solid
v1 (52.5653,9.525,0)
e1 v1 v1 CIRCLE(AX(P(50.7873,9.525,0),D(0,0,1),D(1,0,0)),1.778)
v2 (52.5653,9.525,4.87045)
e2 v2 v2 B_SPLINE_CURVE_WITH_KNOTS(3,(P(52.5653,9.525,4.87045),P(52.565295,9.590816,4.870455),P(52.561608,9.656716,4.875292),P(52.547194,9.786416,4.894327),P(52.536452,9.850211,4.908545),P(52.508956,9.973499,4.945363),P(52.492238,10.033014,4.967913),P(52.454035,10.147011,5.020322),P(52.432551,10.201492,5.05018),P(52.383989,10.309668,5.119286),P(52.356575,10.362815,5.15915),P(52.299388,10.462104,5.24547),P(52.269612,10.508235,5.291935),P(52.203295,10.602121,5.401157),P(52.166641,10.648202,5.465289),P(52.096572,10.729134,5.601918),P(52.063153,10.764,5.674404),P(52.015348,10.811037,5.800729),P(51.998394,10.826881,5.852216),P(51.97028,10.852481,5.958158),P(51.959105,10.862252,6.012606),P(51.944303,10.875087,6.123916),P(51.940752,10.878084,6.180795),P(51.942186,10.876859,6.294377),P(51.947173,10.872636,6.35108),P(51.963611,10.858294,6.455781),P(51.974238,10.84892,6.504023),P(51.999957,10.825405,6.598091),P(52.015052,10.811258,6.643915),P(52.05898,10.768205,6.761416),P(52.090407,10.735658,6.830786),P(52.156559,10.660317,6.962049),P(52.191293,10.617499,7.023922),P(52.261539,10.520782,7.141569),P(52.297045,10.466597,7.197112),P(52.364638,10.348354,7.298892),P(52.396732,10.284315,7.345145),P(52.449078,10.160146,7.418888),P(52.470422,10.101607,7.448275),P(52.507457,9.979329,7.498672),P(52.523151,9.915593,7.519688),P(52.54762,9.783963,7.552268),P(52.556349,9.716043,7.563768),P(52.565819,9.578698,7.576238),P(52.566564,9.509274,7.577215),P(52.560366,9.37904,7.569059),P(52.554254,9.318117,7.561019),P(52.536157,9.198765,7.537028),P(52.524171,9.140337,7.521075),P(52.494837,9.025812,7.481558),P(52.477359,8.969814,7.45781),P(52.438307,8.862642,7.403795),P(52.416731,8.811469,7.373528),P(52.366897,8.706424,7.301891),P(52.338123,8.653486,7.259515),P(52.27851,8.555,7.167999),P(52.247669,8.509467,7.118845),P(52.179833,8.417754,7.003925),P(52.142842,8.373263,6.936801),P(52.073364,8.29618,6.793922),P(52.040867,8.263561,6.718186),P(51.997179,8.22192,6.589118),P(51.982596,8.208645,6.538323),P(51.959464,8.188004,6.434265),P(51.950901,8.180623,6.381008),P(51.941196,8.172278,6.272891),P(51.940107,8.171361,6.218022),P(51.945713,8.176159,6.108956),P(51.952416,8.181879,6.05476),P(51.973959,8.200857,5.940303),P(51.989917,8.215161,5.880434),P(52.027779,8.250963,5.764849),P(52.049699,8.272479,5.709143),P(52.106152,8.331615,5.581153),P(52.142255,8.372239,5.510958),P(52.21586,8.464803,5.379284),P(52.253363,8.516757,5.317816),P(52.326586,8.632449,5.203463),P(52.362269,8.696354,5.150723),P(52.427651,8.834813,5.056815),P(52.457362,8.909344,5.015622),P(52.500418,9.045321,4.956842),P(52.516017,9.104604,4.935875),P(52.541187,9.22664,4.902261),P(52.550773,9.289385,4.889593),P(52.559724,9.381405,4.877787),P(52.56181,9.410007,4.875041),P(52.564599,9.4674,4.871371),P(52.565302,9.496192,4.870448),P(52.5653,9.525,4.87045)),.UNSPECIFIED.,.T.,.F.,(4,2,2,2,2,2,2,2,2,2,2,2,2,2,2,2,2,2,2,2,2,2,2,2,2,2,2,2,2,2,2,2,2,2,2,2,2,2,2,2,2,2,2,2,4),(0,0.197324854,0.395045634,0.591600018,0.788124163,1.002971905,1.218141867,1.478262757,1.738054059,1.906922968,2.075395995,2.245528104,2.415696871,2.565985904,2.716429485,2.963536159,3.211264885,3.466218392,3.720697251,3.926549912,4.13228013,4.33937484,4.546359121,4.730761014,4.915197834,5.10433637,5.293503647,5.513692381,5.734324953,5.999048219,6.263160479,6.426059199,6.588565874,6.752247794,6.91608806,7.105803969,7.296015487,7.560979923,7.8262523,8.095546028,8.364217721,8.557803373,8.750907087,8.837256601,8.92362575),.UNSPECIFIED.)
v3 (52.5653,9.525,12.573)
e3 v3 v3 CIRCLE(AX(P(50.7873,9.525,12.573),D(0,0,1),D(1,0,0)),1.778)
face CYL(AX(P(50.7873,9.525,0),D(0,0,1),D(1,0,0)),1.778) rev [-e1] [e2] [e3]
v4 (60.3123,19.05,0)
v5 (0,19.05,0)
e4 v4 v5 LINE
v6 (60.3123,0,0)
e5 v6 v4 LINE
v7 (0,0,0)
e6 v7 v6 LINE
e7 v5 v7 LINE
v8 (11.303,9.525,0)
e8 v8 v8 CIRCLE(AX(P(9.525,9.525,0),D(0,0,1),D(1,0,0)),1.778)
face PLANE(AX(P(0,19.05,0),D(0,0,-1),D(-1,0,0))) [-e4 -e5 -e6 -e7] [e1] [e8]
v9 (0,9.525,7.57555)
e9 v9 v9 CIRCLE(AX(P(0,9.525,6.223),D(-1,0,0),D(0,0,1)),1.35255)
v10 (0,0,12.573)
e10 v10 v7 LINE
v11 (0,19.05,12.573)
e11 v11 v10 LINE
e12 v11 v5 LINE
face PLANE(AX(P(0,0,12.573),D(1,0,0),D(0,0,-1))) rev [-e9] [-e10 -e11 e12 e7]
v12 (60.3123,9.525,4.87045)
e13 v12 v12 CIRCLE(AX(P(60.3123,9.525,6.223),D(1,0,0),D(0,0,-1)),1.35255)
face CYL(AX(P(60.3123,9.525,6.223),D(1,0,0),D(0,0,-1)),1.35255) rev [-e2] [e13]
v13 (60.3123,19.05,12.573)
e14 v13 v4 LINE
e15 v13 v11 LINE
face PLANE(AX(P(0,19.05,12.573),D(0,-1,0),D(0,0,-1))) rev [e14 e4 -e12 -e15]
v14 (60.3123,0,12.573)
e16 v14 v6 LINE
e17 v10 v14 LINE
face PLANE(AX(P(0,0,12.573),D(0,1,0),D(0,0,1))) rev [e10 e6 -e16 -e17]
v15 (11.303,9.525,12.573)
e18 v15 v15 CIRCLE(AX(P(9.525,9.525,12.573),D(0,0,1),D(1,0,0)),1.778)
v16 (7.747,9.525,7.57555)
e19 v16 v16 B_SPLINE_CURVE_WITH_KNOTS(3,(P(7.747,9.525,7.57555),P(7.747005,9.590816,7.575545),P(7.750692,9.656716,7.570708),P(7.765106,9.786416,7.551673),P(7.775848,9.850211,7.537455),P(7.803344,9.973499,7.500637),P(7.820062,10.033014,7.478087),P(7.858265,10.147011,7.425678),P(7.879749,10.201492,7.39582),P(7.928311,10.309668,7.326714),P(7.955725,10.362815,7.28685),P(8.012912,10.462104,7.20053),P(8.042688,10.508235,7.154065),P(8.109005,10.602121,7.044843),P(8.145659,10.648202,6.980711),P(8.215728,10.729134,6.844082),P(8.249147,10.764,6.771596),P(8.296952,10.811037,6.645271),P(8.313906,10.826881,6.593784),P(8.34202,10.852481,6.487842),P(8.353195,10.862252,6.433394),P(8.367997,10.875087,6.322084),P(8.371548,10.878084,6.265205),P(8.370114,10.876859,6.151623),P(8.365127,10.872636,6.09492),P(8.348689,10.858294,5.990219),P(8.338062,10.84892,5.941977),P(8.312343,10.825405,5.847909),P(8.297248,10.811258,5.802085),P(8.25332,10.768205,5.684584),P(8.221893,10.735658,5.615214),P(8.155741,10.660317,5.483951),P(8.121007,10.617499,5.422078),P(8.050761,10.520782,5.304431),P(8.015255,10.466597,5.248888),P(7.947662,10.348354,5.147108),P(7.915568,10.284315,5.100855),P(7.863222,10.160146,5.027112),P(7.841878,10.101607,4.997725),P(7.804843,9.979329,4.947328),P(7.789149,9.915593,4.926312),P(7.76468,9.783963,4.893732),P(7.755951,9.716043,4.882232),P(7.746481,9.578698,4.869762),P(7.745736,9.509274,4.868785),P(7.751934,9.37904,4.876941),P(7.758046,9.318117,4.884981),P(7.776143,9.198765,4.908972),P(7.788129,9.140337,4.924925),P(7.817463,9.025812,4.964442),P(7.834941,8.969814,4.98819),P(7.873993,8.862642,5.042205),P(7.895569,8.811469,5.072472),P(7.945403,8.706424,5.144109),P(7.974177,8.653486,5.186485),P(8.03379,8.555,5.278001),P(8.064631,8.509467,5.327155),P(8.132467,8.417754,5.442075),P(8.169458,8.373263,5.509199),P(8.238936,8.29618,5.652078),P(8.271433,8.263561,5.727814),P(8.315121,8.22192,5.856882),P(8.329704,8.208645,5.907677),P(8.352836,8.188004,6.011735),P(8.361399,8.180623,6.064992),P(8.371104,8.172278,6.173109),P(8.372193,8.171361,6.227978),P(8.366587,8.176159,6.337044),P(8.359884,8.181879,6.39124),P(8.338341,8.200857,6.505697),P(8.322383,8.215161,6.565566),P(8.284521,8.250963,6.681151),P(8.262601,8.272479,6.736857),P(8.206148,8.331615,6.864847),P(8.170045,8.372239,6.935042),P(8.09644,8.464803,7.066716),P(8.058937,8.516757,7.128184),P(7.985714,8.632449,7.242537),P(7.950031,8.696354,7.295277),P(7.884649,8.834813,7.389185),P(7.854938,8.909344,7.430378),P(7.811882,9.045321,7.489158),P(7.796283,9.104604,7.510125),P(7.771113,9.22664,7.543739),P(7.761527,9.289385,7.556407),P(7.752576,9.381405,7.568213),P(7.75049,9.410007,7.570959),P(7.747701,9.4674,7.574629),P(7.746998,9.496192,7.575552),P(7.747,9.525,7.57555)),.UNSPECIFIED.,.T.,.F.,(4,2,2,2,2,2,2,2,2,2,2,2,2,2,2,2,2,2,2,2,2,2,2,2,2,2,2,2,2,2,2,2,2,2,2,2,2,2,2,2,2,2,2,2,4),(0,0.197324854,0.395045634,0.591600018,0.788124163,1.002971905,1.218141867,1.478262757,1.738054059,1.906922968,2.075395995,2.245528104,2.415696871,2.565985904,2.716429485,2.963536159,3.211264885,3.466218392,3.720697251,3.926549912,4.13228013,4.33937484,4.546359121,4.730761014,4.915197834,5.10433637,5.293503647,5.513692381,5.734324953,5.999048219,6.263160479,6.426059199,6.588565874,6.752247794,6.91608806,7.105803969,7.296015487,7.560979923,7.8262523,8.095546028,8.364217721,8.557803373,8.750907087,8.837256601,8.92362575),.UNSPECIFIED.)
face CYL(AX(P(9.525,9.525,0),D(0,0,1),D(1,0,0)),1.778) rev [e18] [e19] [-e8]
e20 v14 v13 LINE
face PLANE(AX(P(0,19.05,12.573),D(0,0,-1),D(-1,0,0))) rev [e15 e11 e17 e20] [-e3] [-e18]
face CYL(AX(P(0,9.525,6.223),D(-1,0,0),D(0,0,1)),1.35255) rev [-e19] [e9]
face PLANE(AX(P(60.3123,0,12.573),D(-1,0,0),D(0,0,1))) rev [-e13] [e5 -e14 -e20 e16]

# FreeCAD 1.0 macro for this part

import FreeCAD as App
import Part
import Sketcher
Q = App.Units.Quantity

doc = App.newDocument("Part")
params = doc.addObject("Spreadsheet::Sheet", "Params")
for row, (alias, value) in enumerate([
    ("sketch1_height", "0.75 in"),
    ("pad1_length", "0.495 in"),
    ("sketch2_diameter", "0.14 in"),
    ("hole_diameter", "0.1065 in"),
    ("hole_depth", "0.375 in"),
    ("hole2_diameter", "0.1065 in"),
    ("hole2_depth", "0.375 in"),
], start=1):
    params.set(f"A{row}", alias)
    params.set(f"B{row}", "=" + value)
    params.setAlias(f"B{row}", alias)

body = doc.addObject("PartDesign::Body", "Body")

# Sketch on XY plane
sketch1 = body.newObject("Sketcher::SketchObject", "Sketch")
sketch1.AttachmentSupport = (doc.getObject("XY_Plane"), [""])
sketch1.MapMode = "FlatFace"
sketch1.addGeometry([
    Part.LineSegment(App.Vector(0, 19, 0), App.Vector(0, 0, 0)),
    Part.LineSegment(App.Vector(0, 0, 0), App.Vector(60, 0, 0)),
    Part.LineSegment(App.Vector(60, 0, 0), App.Vector(60, 19, 0)),
    Part.LineSegment(App.Vector(60, 19, 0), App.Vector(0, 19, 0)),
], False)
sketch1.addConstraint([
    Sketcher.Constraint("Coincident", 0, 2, 1, 1),
    Sketcher.Constraint("Coincident", 1, 2, 2, 1),
    Sketcher.Constraint("Coincident", 2, 2, 3, 1),
    Sketcher.Constraint("Coincident", 3, 2, 0, 1),
    Sketcher.Constraint("Vertical", 0),
    Sketcher.Constraint("Horizontal", 1),
    Sketcher.Constraint("Vertical", 2),
    Sketcher.Constraint("Horizontal", 3),
    Sketcher.Constraint("Coincident", 0, 2, -1, 1),
    Sketcher.Constraint("DistanceY", 0, 2, 0, 1, Q("0.75 in")),
    Sketcher.Constraint("DistanceX", 1, 1, 1, 2, Q("2.3745 in")),
])
sketch1.setExpression("Constraints[9]", "Params.sketch1_height")
pad1 = body.newObject("PartDesign::Pad", "Pad")
pad1.Profile = sketch1
pad1.setExpression("Length", "Params.pad1_length")

# Sketch on XY plane
sketch2 = body.newObject("Sketcher::SketchObject", "Sketch001")
sketch2.AttachmentSupport = (doc.getObject("XY_Plane"), [""])
sketch2.MapMode = "FlatFace"
sketch2.AttachmentOffset = App.Placement(App.Vector(0, 0, 0.495 * 25.4), App.Rotation())
sketch2.addGeometry([
    Part.Circle(App.Vector(9.5, 9.5, 0), App.Vector(0, 0, 1), 1.8),
    Part.Circle(App.Vector(50.8, 9.5, 0), App.Vector(0, 0, 1), 1.8),
], False)
sketch2.addConstraint([
    Sketcher.Constraint("Equal", 0, 1),
    Sketcher.Constraint("Horizontal", 0, 3, 1, 3),
    Sketcher.Constraint("Diameter", 0, Q("0.14 in")),
    Sketcher.Constraint("DistanceX", -1, 1, 0, 3, Q("0.375 in")),
    Sketcher.Constraint("DistanceY", -1, 1, 0, 3, Q("0.375 in")),
    Sketcher.Constraint("DistanceX", -1, 1, 1, 3, Q("1.9995 in")),
])
sketch2.setExpression("Constraints[2]", "Params.sketch2_diameter")
pocket1 = body.newObject("PartDesign::Pocket", "Pocket")
pocket1.Profile = sketch2
pocket1.Type = "ThroughAll"

# Sketch on YZ plane
sketch3 = body.newObject("Sketcher::SketchObject", "Sketch002")
sketch3.AttachmentSupport = (doc.getObject("YZ_Plane"), [""])
sketch3.MapMode = "FlatFace"
sketch3.addGeometry(Part.Circle(App.Vector(9.5, 6.2, 0), App.Vector(0, 0, 1), 1.4), False)
sketch3.addConstraint([
    Sketcher.Constraint("Diameter", 0, Q("0.1065 in")),
    Sketcher.Constraint("DistanceX", -1, 1, 0, 3, Q("0.375 in")),
    Sketcher.Constraint("DistanceY", -1, 1, 0, 3, Q("0.245 in")),
])
doc.recompute()
hole = body.newObject("PartDesign::Hole", "Hole")
hole.Profile = sketch3
hole.ThreadType = "None"
hole.setExpression("Diameter", "Params.hole_diameter")
hole.DepthType = "Dimension"
hole.setExpression("Depth", "Params.hole_depth")
hole.DrillPoint = "Angled"
hole.DrillPointAngle = 118
hole.Reversed = True

# Sketch on YZ plane
sketch4 = body.newObject("Sketcher::SketchObject", "Sketch003")
sketch4.AttachmentSupport = (doc.getObject("YZ_Plane"), [""])
sketch4.MapMode = "FlatFace"
sketch4.AttachmentOffset = App.Placement(App.Vector(0, 0, 2.3745 * 25.4), App.Rotation())
sketch4.addGeometry(Part.Circle(App.Vector(9.5, 6.2, 0), App.Vector(0, 0, 1), 1.4), False)
sketch4.addConstraint([
    Sketcher.Constraint("Diameter", 0, Q("0.1065 in")),
    Sketcher.Constraint("DistanceX", -1, 1, 0, 3, Q("0.375 in")),
    Sketcher.Constraint("DistanceY", -1, 1, 0, 3, Q("0.245 in")),
])
doc.recompute()
hole2 = body.newObject("PartDesign::Hole", "Hole001")
hole2.Profile = sketch4
hole2.ThreadType = "None"
hole2.setExpression("Diameter", "Params.hole2_diameter")
hole2.DepthType = "Dimension"
hole2.setExpression("Depth", "Params.hole2_depth")
hole2.DrillPoint = "Angled"
hole2.DrillPointAngle = 118

doc.recompute()
